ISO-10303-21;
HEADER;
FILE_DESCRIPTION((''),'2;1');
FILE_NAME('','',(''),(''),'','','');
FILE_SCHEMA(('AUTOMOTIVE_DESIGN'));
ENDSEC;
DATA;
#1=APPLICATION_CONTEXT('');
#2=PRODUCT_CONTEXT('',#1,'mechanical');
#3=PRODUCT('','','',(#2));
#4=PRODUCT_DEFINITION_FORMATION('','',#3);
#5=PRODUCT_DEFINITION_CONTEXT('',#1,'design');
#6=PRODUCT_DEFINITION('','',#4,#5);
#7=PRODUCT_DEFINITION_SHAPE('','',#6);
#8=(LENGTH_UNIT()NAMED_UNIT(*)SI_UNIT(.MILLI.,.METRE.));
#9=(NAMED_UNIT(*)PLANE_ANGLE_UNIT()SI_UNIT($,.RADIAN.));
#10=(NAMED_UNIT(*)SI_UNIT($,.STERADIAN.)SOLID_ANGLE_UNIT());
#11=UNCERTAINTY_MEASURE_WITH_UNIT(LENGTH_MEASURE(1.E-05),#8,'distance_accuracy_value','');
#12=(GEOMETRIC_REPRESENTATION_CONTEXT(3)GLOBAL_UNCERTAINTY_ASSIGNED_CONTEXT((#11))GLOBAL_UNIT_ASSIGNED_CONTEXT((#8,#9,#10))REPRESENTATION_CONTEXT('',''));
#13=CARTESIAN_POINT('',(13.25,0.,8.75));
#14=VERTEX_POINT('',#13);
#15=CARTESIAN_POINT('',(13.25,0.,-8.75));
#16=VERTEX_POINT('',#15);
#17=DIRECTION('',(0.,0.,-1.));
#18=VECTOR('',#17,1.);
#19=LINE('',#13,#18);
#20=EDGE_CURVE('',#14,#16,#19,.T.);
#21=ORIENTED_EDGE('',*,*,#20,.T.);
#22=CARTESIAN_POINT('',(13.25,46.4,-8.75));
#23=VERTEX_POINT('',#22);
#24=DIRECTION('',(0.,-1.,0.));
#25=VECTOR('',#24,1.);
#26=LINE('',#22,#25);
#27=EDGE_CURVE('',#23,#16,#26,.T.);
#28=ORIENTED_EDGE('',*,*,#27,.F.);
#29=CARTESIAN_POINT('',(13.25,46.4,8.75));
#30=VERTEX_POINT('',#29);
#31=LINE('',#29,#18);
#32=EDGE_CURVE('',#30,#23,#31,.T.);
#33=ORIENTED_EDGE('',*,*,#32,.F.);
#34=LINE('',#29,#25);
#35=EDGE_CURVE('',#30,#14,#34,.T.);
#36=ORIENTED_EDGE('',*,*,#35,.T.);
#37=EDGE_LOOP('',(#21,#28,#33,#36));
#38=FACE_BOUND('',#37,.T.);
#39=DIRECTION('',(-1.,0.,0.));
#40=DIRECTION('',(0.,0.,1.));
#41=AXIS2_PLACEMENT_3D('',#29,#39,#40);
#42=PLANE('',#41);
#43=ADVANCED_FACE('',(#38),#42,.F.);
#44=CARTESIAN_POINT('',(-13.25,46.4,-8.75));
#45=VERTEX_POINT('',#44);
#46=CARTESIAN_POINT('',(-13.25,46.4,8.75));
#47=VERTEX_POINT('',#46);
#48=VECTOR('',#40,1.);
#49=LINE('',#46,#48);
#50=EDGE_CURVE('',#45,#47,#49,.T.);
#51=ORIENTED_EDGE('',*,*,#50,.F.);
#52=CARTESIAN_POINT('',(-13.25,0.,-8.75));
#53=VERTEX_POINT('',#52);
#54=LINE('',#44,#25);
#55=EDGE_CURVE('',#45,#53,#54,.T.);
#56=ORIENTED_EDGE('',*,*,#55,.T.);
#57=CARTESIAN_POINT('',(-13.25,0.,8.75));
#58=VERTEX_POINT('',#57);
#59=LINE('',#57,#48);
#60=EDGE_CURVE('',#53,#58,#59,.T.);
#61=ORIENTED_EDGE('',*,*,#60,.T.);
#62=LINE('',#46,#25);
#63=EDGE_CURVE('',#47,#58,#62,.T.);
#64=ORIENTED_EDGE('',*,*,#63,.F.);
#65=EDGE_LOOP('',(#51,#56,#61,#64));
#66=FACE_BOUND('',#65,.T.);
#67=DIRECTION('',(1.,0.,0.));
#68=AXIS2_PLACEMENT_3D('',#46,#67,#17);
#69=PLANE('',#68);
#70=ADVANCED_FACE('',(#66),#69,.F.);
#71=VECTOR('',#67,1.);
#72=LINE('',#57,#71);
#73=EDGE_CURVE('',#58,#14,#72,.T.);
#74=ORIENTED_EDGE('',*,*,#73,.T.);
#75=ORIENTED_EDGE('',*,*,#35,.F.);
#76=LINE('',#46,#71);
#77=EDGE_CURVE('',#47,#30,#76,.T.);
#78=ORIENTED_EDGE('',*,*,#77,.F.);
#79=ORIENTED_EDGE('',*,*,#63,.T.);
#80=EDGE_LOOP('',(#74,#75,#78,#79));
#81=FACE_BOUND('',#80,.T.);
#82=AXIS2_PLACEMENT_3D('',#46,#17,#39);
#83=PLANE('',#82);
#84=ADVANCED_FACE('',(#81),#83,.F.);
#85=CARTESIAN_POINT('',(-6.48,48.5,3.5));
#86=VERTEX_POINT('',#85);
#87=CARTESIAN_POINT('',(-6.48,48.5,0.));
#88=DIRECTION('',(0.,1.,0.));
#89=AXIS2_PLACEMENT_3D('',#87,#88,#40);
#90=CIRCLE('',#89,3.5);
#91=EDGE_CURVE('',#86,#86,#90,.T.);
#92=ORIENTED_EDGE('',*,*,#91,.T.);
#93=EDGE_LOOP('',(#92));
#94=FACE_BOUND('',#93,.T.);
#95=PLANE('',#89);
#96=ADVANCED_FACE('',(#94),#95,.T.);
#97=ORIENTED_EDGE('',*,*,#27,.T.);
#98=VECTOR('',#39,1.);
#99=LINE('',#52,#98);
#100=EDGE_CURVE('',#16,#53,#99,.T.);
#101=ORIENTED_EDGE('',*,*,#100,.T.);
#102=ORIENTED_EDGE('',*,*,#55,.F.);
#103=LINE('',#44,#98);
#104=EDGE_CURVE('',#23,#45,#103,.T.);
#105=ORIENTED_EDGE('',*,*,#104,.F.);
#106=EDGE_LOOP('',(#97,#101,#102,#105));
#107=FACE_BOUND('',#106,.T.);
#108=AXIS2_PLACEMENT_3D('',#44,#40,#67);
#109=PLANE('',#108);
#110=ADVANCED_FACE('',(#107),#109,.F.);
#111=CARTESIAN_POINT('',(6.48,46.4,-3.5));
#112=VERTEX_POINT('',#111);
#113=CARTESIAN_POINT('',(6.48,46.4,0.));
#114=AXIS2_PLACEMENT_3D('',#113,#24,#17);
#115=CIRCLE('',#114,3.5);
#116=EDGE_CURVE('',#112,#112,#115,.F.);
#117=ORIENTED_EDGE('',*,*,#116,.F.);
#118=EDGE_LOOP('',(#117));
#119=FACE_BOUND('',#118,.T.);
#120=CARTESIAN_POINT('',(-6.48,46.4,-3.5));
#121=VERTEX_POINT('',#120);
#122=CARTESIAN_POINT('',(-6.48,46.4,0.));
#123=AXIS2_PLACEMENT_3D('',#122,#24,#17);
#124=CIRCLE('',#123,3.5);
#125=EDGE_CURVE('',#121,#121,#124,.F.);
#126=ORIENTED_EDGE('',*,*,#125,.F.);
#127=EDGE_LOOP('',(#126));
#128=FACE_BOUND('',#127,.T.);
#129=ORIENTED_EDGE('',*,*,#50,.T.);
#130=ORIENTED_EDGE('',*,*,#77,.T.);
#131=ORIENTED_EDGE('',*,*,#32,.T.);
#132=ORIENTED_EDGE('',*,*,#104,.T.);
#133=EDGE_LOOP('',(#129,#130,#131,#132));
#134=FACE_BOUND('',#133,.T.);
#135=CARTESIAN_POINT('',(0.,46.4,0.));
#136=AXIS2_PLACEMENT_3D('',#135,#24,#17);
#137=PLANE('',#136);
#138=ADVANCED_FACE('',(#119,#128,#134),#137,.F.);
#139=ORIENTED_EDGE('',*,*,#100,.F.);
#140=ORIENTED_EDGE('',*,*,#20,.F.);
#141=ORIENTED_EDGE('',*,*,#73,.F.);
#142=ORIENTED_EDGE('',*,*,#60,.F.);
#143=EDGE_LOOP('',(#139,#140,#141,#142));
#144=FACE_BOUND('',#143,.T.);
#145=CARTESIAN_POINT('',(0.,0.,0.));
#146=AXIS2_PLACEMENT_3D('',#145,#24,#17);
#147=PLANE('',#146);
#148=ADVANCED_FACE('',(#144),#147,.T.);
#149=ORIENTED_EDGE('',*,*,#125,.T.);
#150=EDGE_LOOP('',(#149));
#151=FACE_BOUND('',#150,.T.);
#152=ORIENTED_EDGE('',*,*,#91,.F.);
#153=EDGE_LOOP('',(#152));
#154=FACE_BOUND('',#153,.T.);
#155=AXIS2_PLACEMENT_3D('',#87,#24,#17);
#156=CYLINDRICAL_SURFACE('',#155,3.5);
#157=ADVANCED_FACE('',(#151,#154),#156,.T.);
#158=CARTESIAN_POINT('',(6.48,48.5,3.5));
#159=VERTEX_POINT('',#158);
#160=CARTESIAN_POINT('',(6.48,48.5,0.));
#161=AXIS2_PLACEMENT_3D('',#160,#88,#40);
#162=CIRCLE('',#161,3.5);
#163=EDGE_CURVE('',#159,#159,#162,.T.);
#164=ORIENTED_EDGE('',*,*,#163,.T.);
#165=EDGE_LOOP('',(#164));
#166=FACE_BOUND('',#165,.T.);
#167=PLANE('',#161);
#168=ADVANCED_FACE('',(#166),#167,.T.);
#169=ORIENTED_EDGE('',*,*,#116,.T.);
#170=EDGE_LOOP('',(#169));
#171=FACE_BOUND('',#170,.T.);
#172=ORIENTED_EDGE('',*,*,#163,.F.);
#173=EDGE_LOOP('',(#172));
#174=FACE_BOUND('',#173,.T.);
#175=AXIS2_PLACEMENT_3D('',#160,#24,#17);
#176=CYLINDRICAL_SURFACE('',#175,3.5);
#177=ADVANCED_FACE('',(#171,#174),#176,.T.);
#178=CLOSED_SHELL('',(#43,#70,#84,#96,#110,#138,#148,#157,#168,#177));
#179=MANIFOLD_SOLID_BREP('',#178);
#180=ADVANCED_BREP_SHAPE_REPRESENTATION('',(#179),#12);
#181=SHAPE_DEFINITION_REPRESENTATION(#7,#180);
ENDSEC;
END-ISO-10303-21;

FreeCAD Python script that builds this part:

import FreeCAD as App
import Part
import Sketcher
from FreeCAD import Vector
Q = App.Units.Quantity

doc = App.newDocument("Part")
body = doc.addObject("PartDesign::Body", "Body")

# Sketch on XZ plane
sketch1 = doc.addObject("Sketcher::SketchObject", "Sketch")
body.addObject(sketch1)
sketch1.AttachmentSupport = (doc.XZ_Plane, [""])
sketch1.MapMode = "FlatFace"
sketch1.addGeometry([
    Part.LineSegment(Vector(-13, -9, 0), Vector(-13, 9, 0)),
    Part.LineSegment(Vector(-13, 9, 0), Vector(13, 9, 0)),
    Part.LineSegment(Vector(13, 9, 0), Vector(13, -9, 0)),
    Part.LineSegment(Vector(13, -9, 0), Vector(-13, -9, 0)),
], False)
sketch1.addConstraint([
    Sketcher.Constraint("Coincident", 0, 2, 1, 1),
    Sketcher.Constraint("Coincident", 1, 2, 2, 1),
    Sketcher.Constraint("Coincident", 2, 2, 3, 1),
    Sketcher.Constraint("Coincident", 3, 2, 0, 1),
    Sketcher.Constraint("Vertical", 0),
    Sketcher.Constraint("Horizontal", 1),
    Sketcher.Constraint("Vertical", 2),
    Sketcher.Constraint("Horizontal", 3),
    Sketcher.Constraint("Symmetric", 0, 2, 2, 2, -1, 1),
    Sketcher.Constraint("DistanceX", 1, 1, 1, 2, Q("26.5 mm")),
    Sketcher.Constraint("DistanceY", 0, 1, 0, 2, Q("17.5 mm")),
])
pad1 = doc.addObject("PartDesign::Pad", "Pad")
body.addObject(pad1)
pad1.Profile = sketch1
pad1.Length = 46.4
pad1.Reversed = True

# Sketch on XZ plane
sketch2 = doc.addObject("Sketcher::SketchObject", "Sketch001")
body.addObject(sketch2)
sketch2.AttachmentSupport = (doc.XZ_Plane, [""])
sketch2.MapMode = "FlatFace"
sketch2.AttachmentOffset = App.Placement(Vector(0, 0, -46.4), App.Rotation())
sketch2.addGeometry([
    Part.Circle(Vector(-6.5, 0, 0), Vector(0, 0, 1), 3.5),
    Part.Circle(Vector(6.5, 0, 0), Vector(0, 0, 1), 3.5),
], False)
sketch2.addConstraint([
    Sketcher.Constraint("Equal", 0, 1),
    Sketcher.Constraint("Symmetric", 0, 3, 1, 3, -1, 1),
    Sketcher.Constraint("PointOnObject", 0, 3, -1),
    Sketcher.Constraint("Diameter", 0, Q("7 mm")),
    Sketcher.Constraint("DistanceX", 0, 3, -1, 1, Q("6.48 mm")),
])
pad2 = doc.addObject("PartDesign::Pad", "Pad001")
body.addObject(pad2)
pad2.Profile = sketch2
pad2.Length = 2.1
pad2.Reversed = True

doc.recompute()
